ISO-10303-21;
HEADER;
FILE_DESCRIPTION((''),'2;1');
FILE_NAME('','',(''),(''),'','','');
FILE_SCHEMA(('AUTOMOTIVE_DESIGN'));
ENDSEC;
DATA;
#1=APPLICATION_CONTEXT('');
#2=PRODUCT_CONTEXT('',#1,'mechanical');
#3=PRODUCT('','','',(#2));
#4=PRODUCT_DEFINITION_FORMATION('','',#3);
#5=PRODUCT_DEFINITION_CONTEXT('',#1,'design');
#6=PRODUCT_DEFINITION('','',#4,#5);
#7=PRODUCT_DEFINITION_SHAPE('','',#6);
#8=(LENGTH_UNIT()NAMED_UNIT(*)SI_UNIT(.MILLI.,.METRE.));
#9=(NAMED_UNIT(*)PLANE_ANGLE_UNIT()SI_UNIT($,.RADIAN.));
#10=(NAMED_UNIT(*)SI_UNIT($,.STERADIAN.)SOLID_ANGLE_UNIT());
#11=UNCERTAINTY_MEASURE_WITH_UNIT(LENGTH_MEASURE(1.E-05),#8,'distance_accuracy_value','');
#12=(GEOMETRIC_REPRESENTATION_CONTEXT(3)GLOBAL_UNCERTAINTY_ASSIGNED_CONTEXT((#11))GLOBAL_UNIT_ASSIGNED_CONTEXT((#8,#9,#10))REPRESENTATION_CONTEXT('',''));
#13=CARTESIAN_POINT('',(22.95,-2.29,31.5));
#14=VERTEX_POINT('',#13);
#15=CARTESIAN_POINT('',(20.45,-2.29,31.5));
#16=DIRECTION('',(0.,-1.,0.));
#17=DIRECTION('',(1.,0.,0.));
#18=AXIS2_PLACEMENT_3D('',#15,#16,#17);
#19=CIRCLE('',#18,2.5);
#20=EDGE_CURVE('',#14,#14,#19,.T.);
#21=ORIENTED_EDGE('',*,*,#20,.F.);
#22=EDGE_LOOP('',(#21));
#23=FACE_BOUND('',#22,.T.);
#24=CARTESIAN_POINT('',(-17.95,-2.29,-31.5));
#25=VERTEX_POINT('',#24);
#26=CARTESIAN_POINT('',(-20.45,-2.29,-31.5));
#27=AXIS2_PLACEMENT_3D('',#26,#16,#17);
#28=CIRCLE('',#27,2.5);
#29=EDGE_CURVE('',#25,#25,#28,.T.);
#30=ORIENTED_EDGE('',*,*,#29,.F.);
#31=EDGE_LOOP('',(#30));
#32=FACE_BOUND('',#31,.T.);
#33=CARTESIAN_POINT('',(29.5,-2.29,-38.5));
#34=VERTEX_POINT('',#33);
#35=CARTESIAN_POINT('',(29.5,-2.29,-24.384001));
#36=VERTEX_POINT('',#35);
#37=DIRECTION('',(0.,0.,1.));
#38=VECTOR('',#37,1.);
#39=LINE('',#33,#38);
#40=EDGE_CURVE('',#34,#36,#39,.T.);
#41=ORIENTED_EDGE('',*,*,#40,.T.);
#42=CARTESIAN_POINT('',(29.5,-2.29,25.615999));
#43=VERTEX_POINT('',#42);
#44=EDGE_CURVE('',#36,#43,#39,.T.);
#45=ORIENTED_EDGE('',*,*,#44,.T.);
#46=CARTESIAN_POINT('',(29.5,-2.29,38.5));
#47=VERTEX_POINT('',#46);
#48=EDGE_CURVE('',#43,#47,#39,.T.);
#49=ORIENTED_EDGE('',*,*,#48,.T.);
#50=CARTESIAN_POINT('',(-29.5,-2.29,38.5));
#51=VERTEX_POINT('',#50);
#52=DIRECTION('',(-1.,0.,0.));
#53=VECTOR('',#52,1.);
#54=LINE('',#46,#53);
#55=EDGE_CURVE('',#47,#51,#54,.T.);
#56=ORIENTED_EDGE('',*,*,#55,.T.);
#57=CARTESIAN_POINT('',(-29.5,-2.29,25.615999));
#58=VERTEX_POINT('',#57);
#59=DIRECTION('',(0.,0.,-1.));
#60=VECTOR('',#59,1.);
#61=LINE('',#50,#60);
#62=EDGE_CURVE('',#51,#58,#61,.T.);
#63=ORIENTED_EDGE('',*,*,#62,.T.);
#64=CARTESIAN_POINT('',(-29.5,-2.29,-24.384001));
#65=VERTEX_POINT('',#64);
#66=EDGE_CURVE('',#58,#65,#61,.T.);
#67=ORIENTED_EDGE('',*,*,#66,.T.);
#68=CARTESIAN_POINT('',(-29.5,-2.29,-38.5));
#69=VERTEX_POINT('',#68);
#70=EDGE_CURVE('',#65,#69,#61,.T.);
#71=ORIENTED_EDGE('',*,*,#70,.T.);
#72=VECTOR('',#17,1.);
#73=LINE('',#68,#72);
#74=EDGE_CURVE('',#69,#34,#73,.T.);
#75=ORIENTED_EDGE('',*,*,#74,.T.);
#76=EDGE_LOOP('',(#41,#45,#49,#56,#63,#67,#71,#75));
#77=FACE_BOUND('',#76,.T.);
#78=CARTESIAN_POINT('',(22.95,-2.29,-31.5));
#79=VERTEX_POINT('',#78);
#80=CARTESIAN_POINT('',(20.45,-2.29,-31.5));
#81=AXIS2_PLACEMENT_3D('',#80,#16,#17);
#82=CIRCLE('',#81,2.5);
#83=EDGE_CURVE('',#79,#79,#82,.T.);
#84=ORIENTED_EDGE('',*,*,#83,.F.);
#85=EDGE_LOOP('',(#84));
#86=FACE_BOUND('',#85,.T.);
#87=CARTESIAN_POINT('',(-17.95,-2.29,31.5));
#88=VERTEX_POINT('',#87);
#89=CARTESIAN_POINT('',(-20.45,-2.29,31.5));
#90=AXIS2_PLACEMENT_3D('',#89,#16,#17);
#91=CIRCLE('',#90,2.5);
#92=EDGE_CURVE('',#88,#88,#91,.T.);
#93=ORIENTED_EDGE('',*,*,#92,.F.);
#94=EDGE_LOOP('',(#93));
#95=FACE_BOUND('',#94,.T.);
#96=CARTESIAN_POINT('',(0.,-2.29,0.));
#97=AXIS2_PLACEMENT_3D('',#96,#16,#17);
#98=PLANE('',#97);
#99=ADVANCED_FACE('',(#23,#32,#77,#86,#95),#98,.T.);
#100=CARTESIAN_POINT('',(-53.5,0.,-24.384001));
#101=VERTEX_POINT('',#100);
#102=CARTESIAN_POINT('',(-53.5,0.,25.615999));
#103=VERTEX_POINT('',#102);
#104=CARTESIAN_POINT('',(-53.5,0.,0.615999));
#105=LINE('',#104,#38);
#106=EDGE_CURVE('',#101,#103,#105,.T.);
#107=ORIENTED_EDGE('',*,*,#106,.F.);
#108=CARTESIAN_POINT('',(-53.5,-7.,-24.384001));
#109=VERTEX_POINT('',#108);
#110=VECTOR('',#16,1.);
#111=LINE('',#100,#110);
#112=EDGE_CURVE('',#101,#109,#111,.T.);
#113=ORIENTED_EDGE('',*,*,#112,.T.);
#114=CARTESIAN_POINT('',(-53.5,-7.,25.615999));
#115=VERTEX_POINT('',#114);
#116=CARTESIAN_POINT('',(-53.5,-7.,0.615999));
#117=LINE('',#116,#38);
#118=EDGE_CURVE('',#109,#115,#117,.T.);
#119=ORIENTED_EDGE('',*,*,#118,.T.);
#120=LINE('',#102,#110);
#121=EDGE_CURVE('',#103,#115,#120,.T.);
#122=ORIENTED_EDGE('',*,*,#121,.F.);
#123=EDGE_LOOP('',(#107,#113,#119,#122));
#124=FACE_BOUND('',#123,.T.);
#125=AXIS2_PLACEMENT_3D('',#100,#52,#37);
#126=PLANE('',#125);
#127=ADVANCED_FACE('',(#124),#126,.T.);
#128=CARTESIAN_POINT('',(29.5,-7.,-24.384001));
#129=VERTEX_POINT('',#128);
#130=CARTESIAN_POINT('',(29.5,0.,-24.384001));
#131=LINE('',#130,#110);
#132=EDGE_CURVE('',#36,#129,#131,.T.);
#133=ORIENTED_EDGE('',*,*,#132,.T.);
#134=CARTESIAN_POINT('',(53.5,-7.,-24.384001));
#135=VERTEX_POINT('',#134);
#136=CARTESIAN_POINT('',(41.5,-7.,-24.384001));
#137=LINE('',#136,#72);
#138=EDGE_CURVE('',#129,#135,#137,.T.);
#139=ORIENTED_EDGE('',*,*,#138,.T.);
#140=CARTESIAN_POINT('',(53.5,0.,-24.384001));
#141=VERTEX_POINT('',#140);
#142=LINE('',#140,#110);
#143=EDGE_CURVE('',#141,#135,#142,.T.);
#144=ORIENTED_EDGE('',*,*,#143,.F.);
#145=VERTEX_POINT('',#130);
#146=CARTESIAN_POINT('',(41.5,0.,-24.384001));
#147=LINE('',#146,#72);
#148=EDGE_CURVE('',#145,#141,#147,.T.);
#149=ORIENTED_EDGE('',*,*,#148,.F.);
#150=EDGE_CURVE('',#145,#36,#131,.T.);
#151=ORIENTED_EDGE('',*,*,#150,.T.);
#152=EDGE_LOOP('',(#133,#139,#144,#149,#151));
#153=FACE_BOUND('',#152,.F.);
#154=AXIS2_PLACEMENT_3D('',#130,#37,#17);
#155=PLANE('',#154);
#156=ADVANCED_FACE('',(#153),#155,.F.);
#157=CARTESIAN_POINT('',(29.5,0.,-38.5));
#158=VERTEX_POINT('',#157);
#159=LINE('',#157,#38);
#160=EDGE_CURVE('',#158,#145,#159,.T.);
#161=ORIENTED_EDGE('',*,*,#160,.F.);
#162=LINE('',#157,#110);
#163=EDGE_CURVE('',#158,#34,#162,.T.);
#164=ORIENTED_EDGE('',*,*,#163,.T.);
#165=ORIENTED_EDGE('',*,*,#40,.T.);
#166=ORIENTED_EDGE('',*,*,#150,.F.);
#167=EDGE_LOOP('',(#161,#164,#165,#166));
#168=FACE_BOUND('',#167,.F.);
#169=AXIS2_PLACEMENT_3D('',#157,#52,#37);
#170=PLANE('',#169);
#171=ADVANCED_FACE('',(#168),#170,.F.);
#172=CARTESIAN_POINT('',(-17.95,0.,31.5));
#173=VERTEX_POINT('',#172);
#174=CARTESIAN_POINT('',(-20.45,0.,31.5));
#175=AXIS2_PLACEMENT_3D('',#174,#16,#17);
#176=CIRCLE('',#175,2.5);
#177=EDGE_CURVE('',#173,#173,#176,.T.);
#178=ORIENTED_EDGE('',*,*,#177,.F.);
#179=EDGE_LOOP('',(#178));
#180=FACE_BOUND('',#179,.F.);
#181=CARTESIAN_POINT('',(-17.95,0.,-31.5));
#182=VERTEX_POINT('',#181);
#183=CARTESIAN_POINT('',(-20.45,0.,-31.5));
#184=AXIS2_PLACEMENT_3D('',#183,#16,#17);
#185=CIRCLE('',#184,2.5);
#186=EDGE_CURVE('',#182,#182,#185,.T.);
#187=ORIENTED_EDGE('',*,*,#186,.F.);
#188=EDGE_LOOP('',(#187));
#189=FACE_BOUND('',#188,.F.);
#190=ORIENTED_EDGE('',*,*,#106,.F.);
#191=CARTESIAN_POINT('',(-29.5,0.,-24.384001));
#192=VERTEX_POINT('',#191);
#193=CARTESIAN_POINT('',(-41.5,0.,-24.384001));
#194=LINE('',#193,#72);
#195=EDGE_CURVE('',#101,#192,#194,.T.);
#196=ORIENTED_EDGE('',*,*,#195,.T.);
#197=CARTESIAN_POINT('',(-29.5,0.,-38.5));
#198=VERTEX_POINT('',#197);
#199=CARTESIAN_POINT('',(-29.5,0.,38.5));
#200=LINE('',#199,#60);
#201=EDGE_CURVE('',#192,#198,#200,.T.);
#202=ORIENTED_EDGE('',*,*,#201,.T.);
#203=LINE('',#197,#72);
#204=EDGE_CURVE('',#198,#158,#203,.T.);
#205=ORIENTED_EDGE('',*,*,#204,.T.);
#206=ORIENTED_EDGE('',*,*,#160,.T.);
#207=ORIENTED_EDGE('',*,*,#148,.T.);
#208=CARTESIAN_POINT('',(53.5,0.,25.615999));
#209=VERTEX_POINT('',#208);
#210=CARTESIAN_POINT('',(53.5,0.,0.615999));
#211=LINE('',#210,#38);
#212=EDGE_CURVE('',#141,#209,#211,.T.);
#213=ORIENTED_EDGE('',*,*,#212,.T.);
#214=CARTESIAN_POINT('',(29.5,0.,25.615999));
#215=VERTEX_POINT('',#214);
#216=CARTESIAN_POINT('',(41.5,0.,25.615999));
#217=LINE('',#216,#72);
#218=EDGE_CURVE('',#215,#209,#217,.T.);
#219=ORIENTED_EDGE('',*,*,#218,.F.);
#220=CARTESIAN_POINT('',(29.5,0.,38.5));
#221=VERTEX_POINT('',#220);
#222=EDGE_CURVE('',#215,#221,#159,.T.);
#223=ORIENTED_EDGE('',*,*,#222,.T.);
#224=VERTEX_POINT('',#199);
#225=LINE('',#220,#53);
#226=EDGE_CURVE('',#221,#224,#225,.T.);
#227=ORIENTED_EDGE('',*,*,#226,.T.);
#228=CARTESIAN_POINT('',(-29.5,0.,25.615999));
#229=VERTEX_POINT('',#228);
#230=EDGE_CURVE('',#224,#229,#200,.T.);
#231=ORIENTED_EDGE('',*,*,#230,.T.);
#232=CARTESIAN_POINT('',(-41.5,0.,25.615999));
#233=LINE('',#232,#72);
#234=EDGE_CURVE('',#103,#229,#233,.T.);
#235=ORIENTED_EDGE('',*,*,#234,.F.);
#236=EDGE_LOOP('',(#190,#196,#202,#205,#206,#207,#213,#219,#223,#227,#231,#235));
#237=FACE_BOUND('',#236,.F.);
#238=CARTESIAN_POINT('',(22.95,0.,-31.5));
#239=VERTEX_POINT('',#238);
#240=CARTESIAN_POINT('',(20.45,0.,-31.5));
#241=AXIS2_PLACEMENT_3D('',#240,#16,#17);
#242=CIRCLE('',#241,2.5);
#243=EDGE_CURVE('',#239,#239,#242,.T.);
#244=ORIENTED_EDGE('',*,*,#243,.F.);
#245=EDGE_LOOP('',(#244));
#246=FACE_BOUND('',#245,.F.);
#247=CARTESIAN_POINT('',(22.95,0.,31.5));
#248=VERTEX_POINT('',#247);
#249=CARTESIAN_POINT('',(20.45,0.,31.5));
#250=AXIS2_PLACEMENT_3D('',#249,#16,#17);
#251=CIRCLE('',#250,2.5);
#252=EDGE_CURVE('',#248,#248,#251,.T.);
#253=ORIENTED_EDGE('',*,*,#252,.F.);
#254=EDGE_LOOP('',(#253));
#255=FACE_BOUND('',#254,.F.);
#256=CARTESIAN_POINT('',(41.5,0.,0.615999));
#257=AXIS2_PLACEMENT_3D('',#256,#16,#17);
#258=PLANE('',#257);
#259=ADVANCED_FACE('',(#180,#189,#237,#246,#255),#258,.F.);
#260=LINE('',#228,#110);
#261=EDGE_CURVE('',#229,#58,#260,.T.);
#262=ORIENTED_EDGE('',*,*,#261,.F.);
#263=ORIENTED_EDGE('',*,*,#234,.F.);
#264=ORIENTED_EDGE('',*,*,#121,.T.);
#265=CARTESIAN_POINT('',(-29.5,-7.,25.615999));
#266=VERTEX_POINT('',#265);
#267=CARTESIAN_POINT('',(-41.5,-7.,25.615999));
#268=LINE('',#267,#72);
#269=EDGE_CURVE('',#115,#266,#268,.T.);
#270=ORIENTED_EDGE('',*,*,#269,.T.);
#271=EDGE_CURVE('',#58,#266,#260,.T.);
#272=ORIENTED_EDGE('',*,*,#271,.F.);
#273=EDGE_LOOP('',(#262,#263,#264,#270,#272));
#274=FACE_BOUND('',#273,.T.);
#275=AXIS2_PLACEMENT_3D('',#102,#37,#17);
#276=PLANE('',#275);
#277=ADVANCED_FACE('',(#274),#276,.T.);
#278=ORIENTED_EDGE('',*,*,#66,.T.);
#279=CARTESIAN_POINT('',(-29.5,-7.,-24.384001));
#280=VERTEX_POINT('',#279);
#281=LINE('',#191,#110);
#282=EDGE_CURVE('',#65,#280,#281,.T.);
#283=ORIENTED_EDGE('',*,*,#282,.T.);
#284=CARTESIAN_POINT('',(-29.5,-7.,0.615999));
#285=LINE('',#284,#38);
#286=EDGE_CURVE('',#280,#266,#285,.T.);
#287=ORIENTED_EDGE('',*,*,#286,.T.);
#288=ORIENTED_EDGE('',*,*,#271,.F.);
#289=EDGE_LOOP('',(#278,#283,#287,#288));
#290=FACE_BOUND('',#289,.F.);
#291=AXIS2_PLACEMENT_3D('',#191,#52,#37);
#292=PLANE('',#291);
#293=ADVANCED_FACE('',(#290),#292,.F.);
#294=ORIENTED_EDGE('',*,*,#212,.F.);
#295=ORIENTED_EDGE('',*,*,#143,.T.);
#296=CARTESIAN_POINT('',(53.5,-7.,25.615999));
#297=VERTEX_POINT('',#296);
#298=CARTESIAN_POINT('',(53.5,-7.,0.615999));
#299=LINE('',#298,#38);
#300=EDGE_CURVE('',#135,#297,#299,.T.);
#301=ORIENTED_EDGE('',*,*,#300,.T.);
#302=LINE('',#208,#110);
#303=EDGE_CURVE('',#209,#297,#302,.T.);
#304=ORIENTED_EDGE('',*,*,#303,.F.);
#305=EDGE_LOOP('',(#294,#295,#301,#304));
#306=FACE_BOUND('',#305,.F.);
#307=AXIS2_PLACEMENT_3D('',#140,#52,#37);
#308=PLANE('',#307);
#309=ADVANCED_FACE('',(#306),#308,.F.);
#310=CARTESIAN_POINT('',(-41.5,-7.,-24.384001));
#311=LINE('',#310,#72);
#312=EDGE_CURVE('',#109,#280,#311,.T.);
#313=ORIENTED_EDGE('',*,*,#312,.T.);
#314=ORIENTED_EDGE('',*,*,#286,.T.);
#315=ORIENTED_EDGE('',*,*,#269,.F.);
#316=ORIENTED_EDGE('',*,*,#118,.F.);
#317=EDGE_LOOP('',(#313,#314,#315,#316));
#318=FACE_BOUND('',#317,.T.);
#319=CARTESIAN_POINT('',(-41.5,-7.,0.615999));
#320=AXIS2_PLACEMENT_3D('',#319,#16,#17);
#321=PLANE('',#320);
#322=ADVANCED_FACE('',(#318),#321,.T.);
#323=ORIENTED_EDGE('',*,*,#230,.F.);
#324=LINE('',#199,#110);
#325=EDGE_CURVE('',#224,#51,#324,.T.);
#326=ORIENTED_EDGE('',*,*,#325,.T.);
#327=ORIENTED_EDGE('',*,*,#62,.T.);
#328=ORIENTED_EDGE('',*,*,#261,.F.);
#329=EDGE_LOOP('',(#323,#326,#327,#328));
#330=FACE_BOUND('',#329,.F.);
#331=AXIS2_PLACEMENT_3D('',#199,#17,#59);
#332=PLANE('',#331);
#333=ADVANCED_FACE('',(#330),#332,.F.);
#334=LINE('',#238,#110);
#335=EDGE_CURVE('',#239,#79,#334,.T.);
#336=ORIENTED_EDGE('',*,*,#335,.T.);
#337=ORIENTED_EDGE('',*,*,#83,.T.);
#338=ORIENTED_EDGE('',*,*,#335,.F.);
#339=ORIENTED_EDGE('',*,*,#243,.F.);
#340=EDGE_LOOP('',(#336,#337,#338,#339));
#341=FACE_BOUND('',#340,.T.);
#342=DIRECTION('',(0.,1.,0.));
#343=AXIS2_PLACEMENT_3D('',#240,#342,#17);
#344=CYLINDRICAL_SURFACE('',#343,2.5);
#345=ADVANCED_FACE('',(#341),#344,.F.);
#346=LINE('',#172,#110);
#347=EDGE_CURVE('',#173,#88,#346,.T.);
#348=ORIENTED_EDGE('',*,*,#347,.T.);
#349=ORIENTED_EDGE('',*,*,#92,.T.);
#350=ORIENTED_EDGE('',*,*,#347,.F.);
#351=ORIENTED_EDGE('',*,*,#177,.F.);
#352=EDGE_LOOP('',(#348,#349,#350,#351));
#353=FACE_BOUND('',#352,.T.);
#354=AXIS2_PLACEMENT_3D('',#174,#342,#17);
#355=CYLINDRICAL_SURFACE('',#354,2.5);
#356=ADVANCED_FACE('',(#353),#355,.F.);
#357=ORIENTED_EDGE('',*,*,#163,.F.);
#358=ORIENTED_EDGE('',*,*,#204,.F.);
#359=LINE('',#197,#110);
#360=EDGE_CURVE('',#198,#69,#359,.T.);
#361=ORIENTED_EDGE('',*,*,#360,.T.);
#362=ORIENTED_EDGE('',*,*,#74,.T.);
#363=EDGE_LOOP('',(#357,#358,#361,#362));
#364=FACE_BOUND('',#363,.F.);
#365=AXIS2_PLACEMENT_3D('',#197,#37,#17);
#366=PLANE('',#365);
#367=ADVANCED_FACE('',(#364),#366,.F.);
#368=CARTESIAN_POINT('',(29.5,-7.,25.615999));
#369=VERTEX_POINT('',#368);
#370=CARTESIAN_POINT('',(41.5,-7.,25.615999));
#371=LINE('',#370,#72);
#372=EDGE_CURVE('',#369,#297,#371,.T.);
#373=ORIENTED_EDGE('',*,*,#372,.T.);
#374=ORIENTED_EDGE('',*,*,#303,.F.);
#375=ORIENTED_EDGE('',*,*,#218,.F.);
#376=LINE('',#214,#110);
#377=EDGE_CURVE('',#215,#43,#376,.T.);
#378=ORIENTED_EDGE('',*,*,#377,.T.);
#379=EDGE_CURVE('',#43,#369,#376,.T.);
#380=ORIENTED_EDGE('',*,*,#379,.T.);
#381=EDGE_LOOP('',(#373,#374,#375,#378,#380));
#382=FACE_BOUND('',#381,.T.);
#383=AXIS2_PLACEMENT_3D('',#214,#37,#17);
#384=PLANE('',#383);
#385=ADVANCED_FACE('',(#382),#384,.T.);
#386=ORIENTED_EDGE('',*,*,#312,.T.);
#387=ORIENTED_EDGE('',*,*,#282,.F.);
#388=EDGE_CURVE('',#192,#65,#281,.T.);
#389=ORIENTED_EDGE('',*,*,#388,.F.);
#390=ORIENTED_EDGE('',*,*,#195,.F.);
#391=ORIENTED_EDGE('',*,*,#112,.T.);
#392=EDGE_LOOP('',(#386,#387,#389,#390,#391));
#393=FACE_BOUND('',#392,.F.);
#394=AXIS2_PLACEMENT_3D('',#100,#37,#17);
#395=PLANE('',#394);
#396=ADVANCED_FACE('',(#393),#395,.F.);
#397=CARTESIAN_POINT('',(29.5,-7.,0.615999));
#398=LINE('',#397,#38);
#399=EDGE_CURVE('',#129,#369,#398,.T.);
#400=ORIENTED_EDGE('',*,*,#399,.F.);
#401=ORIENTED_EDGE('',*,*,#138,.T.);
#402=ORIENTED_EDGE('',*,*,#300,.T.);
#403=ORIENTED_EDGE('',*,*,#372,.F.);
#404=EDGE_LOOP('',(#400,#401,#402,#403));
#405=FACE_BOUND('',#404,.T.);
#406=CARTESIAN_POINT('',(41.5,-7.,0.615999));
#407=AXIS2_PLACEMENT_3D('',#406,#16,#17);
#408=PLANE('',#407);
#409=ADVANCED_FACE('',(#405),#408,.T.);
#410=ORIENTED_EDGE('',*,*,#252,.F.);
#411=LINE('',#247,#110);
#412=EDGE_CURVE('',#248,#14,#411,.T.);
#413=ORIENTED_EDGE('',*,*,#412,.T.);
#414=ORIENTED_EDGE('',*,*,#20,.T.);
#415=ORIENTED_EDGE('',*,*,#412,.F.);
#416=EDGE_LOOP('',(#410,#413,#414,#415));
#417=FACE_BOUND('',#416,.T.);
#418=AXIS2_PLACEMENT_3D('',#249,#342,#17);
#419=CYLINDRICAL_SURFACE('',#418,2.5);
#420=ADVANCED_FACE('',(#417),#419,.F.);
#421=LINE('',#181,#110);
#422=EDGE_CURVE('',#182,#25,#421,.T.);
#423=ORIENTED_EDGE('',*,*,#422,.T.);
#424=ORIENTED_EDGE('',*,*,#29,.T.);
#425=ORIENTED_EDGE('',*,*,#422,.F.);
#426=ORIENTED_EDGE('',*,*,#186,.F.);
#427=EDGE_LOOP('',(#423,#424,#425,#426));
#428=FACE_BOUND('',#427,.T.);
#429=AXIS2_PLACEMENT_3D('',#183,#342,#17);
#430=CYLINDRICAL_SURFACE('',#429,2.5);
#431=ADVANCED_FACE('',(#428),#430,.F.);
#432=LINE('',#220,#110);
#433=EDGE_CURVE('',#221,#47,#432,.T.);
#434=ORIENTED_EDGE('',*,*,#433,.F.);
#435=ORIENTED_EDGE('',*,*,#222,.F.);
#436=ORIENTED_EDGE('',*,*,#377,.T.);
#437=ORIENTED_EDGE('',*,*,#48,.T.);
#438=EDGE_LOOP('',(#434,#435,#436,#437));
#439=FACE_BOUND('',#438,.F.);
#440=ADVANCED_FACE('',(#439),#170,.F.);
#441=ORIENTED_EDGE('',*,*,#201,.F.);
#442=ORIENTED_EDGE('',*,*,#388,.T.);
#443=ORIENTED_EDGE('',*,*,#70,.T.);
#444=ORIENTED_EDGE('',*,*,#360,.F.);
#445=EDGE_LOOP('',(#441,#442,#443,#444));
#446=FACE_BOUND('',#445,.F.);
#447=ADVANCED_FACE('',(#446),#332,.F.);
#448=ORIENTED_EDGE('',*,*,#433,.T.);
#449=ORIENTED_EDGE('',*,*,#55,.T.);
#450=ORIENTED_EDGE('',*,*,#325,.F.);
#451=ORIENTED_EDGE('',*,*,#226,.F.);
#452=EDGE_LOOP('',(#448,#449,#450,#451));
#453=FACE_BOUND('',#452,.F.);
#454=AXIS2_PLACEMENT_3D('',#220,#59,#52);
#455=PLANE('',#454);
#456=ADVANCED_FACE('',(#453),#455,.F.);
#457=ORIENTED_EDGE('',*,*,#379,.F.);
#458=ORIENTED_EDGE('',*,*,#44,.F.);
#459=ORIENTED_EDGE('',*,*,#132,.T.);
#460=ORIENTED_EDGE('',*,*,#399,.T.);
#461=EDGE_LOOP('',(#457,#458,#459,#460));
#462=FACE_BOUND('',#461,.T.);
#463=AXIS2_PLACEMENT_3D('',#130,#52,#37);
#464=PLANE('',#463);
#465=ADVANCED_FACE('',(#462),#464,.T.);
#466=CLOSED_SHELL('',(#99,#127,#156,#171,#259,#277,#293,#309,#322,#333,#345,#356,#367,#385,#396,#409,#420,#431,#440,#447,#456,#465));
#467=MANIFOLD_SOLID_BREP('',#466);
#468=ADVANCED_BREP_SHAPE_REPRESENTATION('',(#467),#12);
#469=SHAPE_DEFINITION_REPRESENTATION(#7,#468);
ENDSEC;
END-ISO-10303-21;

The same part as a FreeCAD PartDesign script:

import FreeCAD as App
import Part
import Sketcher
from FreeCAD import Vector


def add_polygon(sketch, points):
    """Adds a closed chain of lines whose ends are joined by coincident constraints."""
    first, n = sketch.GeometryCount, len(points)
    for a, b in zip(points, points[1:] + points[:1]):
        sketch.addGeometry(Part.LineSegment(App.Vector(*a, 0), App.Vector(*b, 0)), False)
    for i in range(n):
        sketch.addConstraint(Sketcher.Constraint("Coincident", first + i, 2, first + (i + 1) % n, 1))

doc = App.newDocument("Part")
params = doc.addObject("Spreadsheet::Sheet", "Params")
for row, (alias, value) in enumerate([
    ("sketch1_diameter", "5 mm"),
    ("sketch1_width", "59 mm"),
    ("sketch1_height", "77 mm"),
    ("pad1_length", "2.29 mm"),
    ("sketch2_width", "24 mm"),
    ("sketch2_height", "50 mm"),
    ("pad2_length", "7 mm"),
], start=1):
    params.set(f"A{row}", alias)
    params.set(f"B{row}", "=" + value)
    params.setAlias(f"B{row}", alias)

body = doc.addObject("PartDesign::Body", "Body")

sketch1 = doc.addObject("Sketcher::SketchObject", "Sketch")
body.addObject(sketch1)
sketch1.AttachmentSupport = (doc.XZ_Plane, [""])
sketch1.MapMode = "FlatFace"
add_polygon(sketch1, [(-29.5, -38.5), (29.5, -38.5), (29.5, 38.5), (-29.5, 38.5)])
sketch1.addGeometry(Part.Circle(Vector(-20.4, -31.5, 0), Vector(0, 0, 1), 2.5), False)
sketch1.addGeometry(Part.Circle(Vector(20.4, -31.5, 0), Vector(0, 0, 1), 2.5), False)
sketch1.addGeometry(Part.Circle(Vector(-20.4, 31.5, 0), Vector(0, 0, 1), 2.5), False)
sketch1.addGeometry(Part.Circle(Vector(20.4, 31.5, 0), Vector(0, 0, 1), 2.5), False)
sketch1.addConstraint(Sketcher.Constraint("Horizontal", 0))
sketch1.addConstraint(Sketcher.Constraint("Vertical", 1))
sketch1.addConstraint(Sketcher.Constraint("Horizontal", 2))
sketch1.addConstraint(Sketcher.Constraint("Vertical", 3))
sketch1.addConstraint(Sketcher.Constraint("Equal", 4, 5))
sketch1.addConstraint(Sketcher.Constraint("Equal", 5, 6))
sketch1.addConstraint(Sketcher.Constraint("Equal", 6, 7))
sketch1.addConstraint(Sketcher.Constraint("Symmetric", 5, 3, 6, 3, -1, 1))
sketch1.addConstraint(Sketcher.Constraint("Symmetric", 4, 3, 7, 3, -1, 1))
sketch1.addConstraint(Sketcher.Constraint("Symmetric", 0, 2, 2, 2, -1, 1))
sketch1.addConstraint(Sketcher.Constraint("Symmetric", 4, 3, 5, 3, -2))
sketch1.addConstraint(Sketcher.Constraint("Diameter", 4, 5.0))
sketch1.addConstraint(Sketcher.Constraint("DistanceX", 0, 1, 0, 2, 59.0))
sketch1.addConstraint(Sketcher.Constraint("DistanceY", 1, 1, 1, 2, 77.0))
sketch1.addConstraint(Sketcher.Constraint("DistanceY", 4, 3, 6, 3, 63.0))
sketch1.addConstraint(Sketcher.Constraint("DistanceX", 4, 3, 5, 3, 40.9))
sketch1.setExpression("Constraints[15]", "Params.sketch1_diameter")
sketch1.setExpression("Constraints[16]", "Params.sketch1_width")
sketch1.setExpression("Constraints[17]", "Params.sketch1_height")
pad1 = doc.addObject("PartDesign::Pad", "Pad")
body.addObject(pad1)
pad1.Profile = sketch1
pad1.setExpression("Length", "Params.pad1_length")

sketch2 = doc.addObject("Sketcher::SketchObject", "Sketch001")
body.addObject(sketch2)
sketch2.AttachmentSupport = (doc.XZ_Plane, [""])
sketch2.MapMode = "FlatFace"
add_polygon(sketch2, [(30, 26), (30, -24), (54, -24), (54, 26)])
add_polygon(sketch2, [(-54, 26), (-54, -24), (-30, -24), (-30, 26)])
sketch2.addConstraint(Sketcher.Constraint("Vertical", 0))
sketch2.addConstraint(Sketcher.Constraint("Horizontal", 1))
sketch2.addConstraint(Sketcher.Constraint("Vertical", 2))
sketch2.addConstraint(Sketcher.Constraint("Horizontal", 3))
sketch2.addConstraint(Sketcher.Constraint("Vertical", 4))
sketch2.addConstraint(Sketcher.Constraint("Horizontal", 5))
sketch2.addConstraint(Sketcher.Constraint("Vertical", 6))
sketch2.addConstraint(Sketcher.Constraint("Horizontal", 7))
sketch2.addConstraint(Sketcher.Constraint("Symmetric", 1, 2, 4, 2, -2))
sketch2.addConstraint(Sketcher.Constraint("Symmetric", 3, 2, 6, 2, -2))
sketch2.addConstraint(Sketcher.Constraint("DistanceX", 1, 1, 1, 2, 24.0))
sketch2.addConstraint(Sketcher.Constraint("DistanceY", 0, 2, 0, 1, 50.0))
sketch2.addConstraint(Sketcher.Constraint("DistanceX", 4, 2, 0, 2, 83.0))
sketch2.addConstraint(Sketcher.Constraint("DistanceY", 0, 2, -1, 1, 24.384001))
sketch2.setExpression("Constraints[18]", "Params.sketch2_width")
sketch2.setExpression("Constraints[19]", "Params.sketch2_height")
pad2 = doc.addObject("PartDesign::Pad", "Pad001")
body.addObject(pad2)
pad2.Profile = sketch2
pad2.setExpression("Length", "Params.pad2_length")

doc.recompute()
